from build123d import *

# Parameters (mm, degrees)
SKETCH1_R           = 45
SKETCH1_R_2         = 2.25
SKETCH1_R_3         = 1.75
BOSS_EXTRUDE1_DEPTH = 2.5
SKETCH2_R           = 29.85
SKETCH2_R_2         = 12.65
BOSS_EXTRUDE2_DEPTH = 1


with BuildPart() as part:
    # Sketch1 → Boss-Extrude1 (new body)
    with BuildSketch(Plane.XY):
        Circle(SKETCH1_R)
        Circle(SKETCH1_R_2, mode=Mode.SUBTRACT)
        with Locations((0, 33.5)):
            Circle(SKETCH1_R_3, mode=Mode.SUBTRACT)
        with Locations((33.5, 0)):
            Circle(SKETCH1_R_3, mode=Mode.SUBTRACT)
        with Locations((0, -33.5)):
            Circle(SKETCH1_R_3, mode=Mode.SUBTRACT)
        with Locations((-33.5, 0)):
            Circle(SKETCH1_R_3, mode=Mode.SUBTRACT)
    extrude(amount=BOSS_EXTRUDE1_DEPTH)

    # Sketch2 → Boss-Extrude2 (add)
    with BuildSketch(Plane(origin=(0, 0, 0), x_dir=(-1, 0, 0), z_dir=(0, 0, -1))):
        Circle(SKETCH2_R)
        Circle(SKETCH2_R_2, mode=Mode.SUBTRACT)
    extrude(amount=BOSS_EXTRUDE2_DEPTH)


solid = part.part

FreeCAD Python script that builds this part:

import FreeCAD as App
import Part
import Sketcher

V = App.Vector

doc = App.newDocument("Part")
body = doc.addObject("PartDesign::Body", "Body")

# Sketch on XY plane
sketch1 = body.newObject("Sketcher::SketchObject", "Sketch")
sketch1.AttachmentSupport = (doc.getObject("XY_Plane"), [""])
sketch1.MapMode = "FlatFace"
sketch1.addGeometry(Part.Circle(V(0, 0, 0), V(0, 0, 1), 45), False)
sketch1.addGeometry(Part.Circle(V(0, -33.5, 0), V(0, 0, 1), 1.8), False)
sketch1.addGeometry(Part.Circle(V(-33.5, 0, 0), V(0, 0, 1), 1.8), False)
sketch1.addGeometry(Part.Circle(V(0, 0, 0), V(0, 0, 1), 2.2), False)
sketch1.addGeometry(Part.Circle(V(33.5, 0, 0), V(0, 0, 1), 1.8), False)
sketch1.addGeometry(Part.Circle(V(0, 33.5, 0), V(0, 0, 1), 1.8), False)
sketch1.addConstraint(Sketcher.Constraint("Coincident", 0, 3, -1, 1))
sketch1.addConstraint(Sketcher.Constraint("Coincident", 3, 3, -1, 1))
sketch1.addConstraint(Sketcher.Constraint("Equal", 1, 2))
sketch1.addConstraint(Sketcher.Constraint("Equal", 2, 4))
sketch1.addConstraint(Sketcher.Constraint("Equal", 4, 5))
sketch1.addConstraint(Sketcher.Constraint("Symmetric", 2, 3, 4, 3, -1, 1))
sketch1.addConstraint(Sketcher.Constraint("Symmetric", 1, 3, 5, 3, -1, 1))
sketch1.addConstraint(Sketcher.Constraint("PointOnObject", 1, 3, -2))
sketch1.addConstraint(Sketcher.Constraint("PointOnObject", 2, 3, -1))
sketch1.addConstraint(Sketcher.Constraint("Diameter", 0, 90.0))
sketch1.addConstraint(Sketcher.Constraint("Diameter", 1, 3.5))
sketch1.addConstraint(Sketcher.Constraint("Diameter", 3, 4.5))
sketch1.addConstraint(Sketcher.Constraint("DistanceX", 2, 3, 4, 3, 67.0))
sketch1.addConstraint(Sketcher.Constraint("DistanceY", 1, 3, 5, 3, 67.0))
pad1 = body.newObject("PartDesign::Pad", "Pad")
pad1.Profile = sketch1
pad1.Length = 2.5

# Sketch on XY plane
sketch2 = body.newObject("Sketcher::SketchObject", "Sketch001")
sketch2.AttachmentSupport = (doc.getObject("XY_Plane"), [""])
sketch2.MapMode = "FlatFace"
sketch2.addGeometry(Part.Circle(V(0, 0, 0), V(0, 0, 1), 30), False)
sketch2.addGeometry(Part.Circle(V(0, 0, 0), V(0, 0, 1), 13), False)
sketch2.addConstraint(Sketcher.Constraint("Coincident", 0, 3, -1, 1))
sketch2.addConstraint(Sketcher.Constraint("Coincident", 1, 3, -1, 1))
sketch2.addConstraint(Sketcher.Constraint("Diameter", 0, 59.7))
sketch2.addConstraint(Sketcher.Constraint("Diameter", 1, 25.3))
pad2 = body.newObject("PartDesign::Pad", "Pad001")
pad2.Profile = sketch2
pad2.Length = 1
pad2.Reversed = True

doc.recompute()
